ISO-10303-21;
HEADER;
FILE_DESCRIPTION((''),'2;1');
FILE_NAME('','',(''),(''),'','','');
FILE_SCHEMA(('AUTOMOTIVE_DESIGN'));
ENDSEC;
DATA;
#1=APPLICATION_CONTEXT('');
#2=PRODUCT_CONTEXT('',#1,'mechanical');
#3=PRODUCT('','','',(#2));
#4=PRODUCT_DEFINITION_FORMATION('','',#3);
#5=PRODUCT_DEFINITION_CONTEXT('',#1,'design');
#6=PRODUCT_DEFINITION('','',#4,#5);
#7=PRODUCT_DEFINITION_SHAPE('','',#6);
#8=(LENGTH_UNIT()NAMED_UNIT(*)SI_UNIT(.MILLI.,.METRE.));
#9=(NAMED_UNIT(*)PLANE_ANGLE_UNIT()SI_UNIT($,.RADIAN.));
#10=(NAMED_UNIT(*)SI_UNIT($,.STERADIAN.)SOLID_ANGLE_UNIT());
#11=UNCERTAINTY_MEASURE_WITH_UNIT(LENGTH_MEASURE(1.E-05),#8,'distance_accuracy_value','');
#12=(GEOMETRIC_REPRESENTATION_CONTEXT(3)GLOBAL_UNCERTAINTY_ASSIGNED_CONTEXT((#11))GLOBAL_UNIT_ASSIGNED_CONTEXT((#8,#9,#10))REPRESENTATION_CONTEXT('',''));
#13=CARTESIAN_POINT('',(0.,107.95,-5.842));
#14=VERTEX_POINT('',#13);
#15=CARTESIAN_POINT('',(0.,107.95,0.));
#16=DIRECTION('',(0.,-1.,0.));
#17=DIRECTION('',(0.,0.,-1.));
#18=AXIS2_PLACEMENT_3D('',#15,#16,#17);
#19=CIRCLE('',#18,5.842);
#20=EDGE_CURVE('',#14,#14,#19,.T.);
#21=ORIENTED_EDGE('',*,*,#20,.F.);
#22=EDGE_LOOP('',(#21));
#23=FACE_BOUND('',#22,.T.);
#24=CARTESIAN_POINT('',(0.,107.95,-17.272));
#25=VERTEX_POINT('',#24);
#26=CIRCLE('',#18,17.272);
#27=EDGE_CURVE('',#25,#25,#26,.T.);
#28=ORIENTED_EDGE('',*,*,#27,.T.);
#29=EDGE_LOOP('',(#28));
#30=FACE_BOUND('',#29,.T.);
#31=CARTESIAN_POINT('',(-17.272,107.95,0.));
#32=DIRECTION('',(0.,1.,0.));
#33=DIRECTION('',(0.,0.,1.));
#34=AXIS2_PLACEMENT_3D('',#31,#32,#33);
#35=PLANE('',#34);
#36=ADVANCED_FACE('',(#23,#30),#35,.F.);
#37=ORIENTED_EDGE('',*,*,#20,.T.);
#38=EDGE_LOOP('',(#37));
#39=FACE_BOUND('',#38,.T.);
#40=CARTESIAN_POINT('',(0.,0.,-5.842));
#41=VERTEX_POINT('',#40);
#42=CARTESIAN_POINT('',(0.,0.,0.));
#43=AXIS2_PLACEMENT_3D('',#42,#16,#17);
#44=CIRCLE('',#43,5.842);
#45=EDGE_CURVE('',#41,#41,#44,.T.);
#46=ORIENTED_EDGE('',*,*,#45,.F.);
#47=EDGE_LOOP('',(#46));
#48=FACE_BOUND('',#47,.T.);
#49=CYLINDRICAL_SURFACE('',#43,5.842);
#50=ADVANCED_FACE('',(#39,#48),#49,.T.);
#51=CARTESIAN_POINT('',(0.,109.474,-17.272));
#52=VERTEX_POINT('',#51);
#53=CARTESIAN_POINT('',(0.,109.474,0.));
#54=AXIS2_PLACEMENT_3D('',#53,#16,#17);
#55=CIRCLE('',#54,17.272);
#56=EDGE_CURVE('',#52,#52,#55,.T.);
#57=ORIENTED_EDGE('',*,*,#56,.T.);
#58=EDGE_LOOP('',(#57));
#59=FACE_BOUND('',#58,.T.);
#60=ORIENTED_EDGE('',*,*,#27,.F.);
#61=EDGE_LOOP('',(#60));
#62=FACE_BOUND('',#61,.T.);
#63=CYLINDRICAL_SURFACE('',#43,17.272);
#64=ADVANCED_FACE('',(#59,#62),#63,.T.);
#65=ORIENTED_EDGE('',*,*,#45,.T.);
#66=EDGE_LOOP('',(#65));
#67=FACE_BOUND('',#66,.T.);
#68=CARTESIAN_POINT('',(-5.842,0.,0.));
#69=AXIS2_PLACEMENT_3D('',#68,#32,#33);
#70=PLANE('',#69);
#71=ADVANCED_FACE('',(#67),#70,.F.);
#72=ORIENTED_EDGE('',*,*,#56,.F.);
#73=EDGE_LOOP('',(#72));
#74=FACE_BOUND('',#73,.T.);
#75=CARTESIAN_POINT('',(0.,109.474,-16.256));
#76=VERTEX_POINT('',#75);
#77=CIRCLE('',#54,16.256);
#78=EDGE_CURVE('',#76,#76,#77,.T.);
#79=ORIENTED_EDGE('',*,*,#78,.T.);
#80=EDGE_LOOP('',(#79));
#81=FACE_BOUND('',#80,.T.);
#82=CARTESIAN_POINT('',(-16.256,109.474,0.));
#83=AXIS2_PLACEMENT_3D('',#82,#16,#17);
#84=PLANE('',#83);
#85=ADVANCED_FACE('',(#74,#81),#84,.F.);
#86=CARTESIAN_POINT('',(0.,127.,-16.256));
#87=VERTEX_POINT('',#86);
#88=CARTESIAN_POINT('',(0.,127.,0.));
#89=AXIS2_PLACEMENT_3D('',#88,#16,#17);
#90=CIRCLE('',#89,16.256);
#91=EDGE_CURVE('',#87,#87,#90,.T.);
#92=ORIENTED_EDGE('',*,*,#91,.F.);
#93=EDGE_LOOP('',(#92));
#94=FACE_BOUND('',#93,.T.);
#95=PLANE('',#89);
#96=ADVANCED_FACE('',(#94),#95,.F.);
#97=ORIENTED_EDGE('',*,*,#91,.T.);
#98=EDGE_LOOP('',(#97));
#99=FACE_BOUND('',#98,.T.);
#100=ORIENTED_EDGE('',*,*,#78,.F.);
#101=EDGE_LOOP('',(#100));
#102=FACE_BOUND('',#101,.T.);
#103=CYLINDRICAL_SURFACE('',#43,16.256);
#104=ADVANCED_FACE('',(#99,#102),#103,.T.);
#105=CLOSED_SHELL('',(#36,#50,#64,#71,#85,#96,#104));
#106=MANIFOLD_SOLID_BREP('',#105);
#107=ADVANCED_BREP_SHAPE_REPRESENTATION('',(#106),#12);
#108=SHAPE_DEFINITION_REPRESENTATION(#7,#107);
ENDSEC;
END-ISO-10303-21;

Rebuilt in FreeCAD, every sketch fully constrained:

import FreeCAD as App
import Part
import Sketcher

V = App.Vector
Q = App.Units.Quantity


def add_polygon(sketch, points):
    """Adds a closed chain of lines whose ends are joined by coincident constraints."""
    first, n = sketch.GeometryCount, len(points)
    for a, b in zip(points, points[1:] + points[:1]):
        sketch.addGeometry(Part.LineSegment(App.Vector(*a, 0), App.Vector(*b, 0)), False)
    for i in range(n):
        sketch.addConstraint(Sketcher.Constraint("Coincident", first + i, 2, first + (i + 1) % n, 1))

doc = App.newDocument("Part")
params = doc.addObject("Spreadsheet::Sheet", "Params")
for row, (alias, value) in enumerate([
    ("sketch1_height", "5 in"),
    ("sketch1_width", "0.64 in"),
    ("sketch1_width2", "0.04 in"),
    ("sketch1_width3", "0.45 in"),
    ("sketch1_height2", "0.69 in"),
    ("revolution_angle", "360 deg"),
], start=1):
    params.set(f"A{row}", alias)
    params.set(f"B{row}", "=" + value)
    params.setAlias(f"B{row}", alias)

body = doc.addObject("PartDesign::Body", "Body")

sketch1 = doc.addObject("Sketcher::SketchObject", "Sketch")
body.addObject(sketch1)
sketch1.AttachmentSupport = (doc.XY_Plane, [""])
sketch1.MapMode = "FlatFace"
add_polygon(sketch1, [(0, 0), (0, 127), (-16.3, 127), (-16.3, 109.5), (-17.3, 109.5), (-17.3, 108), (-5.8, 108), (-5.8, 0)])
sketch1.addConstraint(Sketcher.Constraint("Vertical", 0))
sketch1.addConstraint(Sketcher.Constraint("Horizontal", 1))
sketch1.addConstraint(Sketcher.Constraint("Vertical", 2))
sketch1.addConstraint(Sketcher.Constraint("Horizontal", 3))
sketch1.addConstraint(Sketcher.Constraint("Vertical", 4))
sketch1.addConstraint(Sketcher.Constraint("Horizontal", 5))
sketch1.addConstraint(Sketcher.Constraint("Vertical", 6))
sketch1.addConstraint(Sketcher.Constraint("Horizontal", 7))
sketch1.addConstraint(Sketcher.Constraint("Coincident", 7, 2, -1, 1))
sketch1.addConstraint(Sketcher.Constraint("DistanceY", 0, 1, 0, 2, Q("5 in")))
sketch1.addConstraint(Sketcher.Constraint("DistanceX", 1, 2, 1, 1, Q("0.64 in")))
sketch1.addConstraint(Sketcher.Constraint("DistanceX", 3, 2, 3, 1, Q("0.04 in")))
sketch1.addConstraint(Sketcher.Constraint("DistanceX", 5, 1, 5, 2, Q("0.45 in")))
sketch1.addConstraint(Sketcher.Constraint("DistanceY", 2, 2, 2, 1, Q("0.69 in")))
sketch1.addConstraint(Sketcher.Constraint("DistanceY", 4, 2, 4, 1, Q("0.06 in")))
sketch1.setExpression("Constraints[17]", "Params.sketch1_height")
sketch1.setExpression("Constraints[18]", "Params.sketch1_width")
sketch1.setExpression("Constraints[19]", "Params.sketch1_width2")
sketch1.setExpression("Constraints[20]", "Params.sketch1_width3")
sketch1.setExpression("Constraints[21]", "Params.sketch1_height2")
revolution = doc.addObject("PartDesign::Revolution", "Revolution")
body.addObject(revolution)
revolution.Profile = sketch1
revolution.ReferenceAxis = (sketch1, ["V_Axis"])
revolution.setExpression("Angle", "Params.revolution_angle")

doc.recompute()
